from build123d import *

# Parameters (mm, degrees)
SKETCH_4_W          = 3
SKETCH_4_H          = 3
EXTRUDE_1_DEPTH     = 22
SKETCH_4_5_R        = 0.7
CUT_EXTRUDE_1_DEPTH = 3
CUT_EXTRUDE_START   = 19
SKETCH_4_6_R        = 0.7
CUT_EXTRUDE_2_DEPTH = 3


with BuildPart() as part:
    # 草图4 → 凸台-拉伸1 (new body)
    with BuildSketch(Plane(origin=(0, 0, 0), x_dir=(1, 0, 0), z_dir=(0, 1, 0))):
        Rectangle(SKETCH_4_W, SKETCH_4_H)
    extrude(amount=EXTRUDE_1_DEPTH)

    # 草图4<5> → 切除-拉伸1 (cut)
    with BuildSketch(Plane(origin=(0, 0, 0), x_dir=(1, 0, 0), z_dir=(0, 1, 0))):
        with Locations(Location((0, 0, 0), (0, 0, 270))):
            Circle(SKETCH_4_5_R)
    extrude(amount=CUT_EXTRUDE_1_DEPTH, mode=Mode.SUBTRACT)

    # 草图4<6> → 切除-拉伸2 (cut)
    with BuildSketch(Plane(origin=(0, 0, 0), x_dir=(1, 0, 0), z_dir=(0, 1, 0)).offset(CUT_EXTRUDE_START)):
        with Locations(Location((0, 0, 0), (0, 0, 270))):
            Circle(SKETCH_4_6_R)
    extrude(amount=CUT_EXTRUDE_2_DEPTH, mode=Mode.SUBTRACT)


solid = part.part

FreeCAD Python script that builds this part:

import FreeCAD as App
import Part
import Sketcher

V = App.Vector

doc = App.newDocument("Part")
body = doc.addObject("PartDesign::Body", "Body")

sketch1 = doc.addObject("Sketcher::SketchObject", "Sketch")
body.addObject(sketch1)
sketch1.AttachmentSupport = (doc.XZ_Plane, [""])
sketch1.MapMode = "FlatFace"
sketch1.addGeometry([
    Part.LineSegment(V(-1.5, -1.5, 0), V(-1.5, 1.5, 0)),
    Part.LineSegment(V(-1.5, 1.5, 0), V(1.5, 1.5, 0)),
    Part.LineSegment(V(1.5, 1.5, 0), V(1.5, -1.5, 0)),
    Part.LineSegment(V(1.5, -1.5, 0), V(-1.5, -1.5, 0)),
], False)
sketch1.addConstraint([
    Sketcher.Constraint("Coincident", 0, 2, 1, 1),
    Sketcher.Constraint("Coincident", 1, 2, 2, 1),
    Sketcher.Constraint("Coincident", 2, 2, 3, 1),
    Sketcher.Constraint("Coincident", 3, 2, 0, 1),
    Sketcher.Constraint("Vertical", 0),
    Sketcher.Constraint("Horizontal", 1),
    Sketcher.Constraint("Vertical", 2),
    Sketcher.Constraint("Horizontal", 3),
    Sketcher.Constraint("Symmetric", 0, 2, 2, 2, -1, 1),
    Sketcher.Constraint("Equal", 3, 0),
    Sketcher.Constraint("DistanceX", 1, 1, 1, 2, 3.0),
])
pad1 = doc.addObject("PartDesign::Pad", "Pad")
body.addObject(pad1)
pad1.Profile = sketch1
pad1.Length = 22
pad1.Reversed = True

sketch2 = doc.addObject("Sketcher::SketchObject", "Sketch001")
body.addObject(sketch2)
sketch2.AttachmentSupport = (doc.XZ_Plane, [""])
sketch2.MapMode = "FlatFace"
sketch2.addGeometry(Part.Circle(V(0, 0, 0), V(0, 0, 1), 0.7), False)
sketch2.addConstraint([
    Sketcher.Constraint("Coincident", 0, 3, -1, 1),
    Sketcher.Constraint("Diameter", 0, 1.4),
])
pocket1 = doc.addObject("PartDesign::Pocket", "Pocket")
body.addObject(pocket1)
pocket1.Profile = sketch2
pocket1.Length = 3

sketch3 = doc.addObject("Sketcher::SketchObject", "Sketch002")
body.addObject(sketch3)
sketch3.AttachmentSupport = (doc.XZ_Plane, [""])
sketch3.MapMode = "FlatFace"
sketch3.AttachmentOffset = App.Placement(V(0, 0, -19), App.Rotation())
sketch3.addGeometry(Part.Circle(V(0, 0, 0), V(0, 0, 1), 0.7), False)
sketch3.addConstraint([
    Sketcher.Constraint("Coincident", 0, 3, -1, 1),
    Sketcher.Constraint("Diameter", 0, 1.4),
])
pocket2 = doc.addObject("PartDesign::Pocket", "Pocket001")
body.addObject(pocket2)
pocket2.Profile = sketch3
pocket2.Length = 3

doc.recompute()
